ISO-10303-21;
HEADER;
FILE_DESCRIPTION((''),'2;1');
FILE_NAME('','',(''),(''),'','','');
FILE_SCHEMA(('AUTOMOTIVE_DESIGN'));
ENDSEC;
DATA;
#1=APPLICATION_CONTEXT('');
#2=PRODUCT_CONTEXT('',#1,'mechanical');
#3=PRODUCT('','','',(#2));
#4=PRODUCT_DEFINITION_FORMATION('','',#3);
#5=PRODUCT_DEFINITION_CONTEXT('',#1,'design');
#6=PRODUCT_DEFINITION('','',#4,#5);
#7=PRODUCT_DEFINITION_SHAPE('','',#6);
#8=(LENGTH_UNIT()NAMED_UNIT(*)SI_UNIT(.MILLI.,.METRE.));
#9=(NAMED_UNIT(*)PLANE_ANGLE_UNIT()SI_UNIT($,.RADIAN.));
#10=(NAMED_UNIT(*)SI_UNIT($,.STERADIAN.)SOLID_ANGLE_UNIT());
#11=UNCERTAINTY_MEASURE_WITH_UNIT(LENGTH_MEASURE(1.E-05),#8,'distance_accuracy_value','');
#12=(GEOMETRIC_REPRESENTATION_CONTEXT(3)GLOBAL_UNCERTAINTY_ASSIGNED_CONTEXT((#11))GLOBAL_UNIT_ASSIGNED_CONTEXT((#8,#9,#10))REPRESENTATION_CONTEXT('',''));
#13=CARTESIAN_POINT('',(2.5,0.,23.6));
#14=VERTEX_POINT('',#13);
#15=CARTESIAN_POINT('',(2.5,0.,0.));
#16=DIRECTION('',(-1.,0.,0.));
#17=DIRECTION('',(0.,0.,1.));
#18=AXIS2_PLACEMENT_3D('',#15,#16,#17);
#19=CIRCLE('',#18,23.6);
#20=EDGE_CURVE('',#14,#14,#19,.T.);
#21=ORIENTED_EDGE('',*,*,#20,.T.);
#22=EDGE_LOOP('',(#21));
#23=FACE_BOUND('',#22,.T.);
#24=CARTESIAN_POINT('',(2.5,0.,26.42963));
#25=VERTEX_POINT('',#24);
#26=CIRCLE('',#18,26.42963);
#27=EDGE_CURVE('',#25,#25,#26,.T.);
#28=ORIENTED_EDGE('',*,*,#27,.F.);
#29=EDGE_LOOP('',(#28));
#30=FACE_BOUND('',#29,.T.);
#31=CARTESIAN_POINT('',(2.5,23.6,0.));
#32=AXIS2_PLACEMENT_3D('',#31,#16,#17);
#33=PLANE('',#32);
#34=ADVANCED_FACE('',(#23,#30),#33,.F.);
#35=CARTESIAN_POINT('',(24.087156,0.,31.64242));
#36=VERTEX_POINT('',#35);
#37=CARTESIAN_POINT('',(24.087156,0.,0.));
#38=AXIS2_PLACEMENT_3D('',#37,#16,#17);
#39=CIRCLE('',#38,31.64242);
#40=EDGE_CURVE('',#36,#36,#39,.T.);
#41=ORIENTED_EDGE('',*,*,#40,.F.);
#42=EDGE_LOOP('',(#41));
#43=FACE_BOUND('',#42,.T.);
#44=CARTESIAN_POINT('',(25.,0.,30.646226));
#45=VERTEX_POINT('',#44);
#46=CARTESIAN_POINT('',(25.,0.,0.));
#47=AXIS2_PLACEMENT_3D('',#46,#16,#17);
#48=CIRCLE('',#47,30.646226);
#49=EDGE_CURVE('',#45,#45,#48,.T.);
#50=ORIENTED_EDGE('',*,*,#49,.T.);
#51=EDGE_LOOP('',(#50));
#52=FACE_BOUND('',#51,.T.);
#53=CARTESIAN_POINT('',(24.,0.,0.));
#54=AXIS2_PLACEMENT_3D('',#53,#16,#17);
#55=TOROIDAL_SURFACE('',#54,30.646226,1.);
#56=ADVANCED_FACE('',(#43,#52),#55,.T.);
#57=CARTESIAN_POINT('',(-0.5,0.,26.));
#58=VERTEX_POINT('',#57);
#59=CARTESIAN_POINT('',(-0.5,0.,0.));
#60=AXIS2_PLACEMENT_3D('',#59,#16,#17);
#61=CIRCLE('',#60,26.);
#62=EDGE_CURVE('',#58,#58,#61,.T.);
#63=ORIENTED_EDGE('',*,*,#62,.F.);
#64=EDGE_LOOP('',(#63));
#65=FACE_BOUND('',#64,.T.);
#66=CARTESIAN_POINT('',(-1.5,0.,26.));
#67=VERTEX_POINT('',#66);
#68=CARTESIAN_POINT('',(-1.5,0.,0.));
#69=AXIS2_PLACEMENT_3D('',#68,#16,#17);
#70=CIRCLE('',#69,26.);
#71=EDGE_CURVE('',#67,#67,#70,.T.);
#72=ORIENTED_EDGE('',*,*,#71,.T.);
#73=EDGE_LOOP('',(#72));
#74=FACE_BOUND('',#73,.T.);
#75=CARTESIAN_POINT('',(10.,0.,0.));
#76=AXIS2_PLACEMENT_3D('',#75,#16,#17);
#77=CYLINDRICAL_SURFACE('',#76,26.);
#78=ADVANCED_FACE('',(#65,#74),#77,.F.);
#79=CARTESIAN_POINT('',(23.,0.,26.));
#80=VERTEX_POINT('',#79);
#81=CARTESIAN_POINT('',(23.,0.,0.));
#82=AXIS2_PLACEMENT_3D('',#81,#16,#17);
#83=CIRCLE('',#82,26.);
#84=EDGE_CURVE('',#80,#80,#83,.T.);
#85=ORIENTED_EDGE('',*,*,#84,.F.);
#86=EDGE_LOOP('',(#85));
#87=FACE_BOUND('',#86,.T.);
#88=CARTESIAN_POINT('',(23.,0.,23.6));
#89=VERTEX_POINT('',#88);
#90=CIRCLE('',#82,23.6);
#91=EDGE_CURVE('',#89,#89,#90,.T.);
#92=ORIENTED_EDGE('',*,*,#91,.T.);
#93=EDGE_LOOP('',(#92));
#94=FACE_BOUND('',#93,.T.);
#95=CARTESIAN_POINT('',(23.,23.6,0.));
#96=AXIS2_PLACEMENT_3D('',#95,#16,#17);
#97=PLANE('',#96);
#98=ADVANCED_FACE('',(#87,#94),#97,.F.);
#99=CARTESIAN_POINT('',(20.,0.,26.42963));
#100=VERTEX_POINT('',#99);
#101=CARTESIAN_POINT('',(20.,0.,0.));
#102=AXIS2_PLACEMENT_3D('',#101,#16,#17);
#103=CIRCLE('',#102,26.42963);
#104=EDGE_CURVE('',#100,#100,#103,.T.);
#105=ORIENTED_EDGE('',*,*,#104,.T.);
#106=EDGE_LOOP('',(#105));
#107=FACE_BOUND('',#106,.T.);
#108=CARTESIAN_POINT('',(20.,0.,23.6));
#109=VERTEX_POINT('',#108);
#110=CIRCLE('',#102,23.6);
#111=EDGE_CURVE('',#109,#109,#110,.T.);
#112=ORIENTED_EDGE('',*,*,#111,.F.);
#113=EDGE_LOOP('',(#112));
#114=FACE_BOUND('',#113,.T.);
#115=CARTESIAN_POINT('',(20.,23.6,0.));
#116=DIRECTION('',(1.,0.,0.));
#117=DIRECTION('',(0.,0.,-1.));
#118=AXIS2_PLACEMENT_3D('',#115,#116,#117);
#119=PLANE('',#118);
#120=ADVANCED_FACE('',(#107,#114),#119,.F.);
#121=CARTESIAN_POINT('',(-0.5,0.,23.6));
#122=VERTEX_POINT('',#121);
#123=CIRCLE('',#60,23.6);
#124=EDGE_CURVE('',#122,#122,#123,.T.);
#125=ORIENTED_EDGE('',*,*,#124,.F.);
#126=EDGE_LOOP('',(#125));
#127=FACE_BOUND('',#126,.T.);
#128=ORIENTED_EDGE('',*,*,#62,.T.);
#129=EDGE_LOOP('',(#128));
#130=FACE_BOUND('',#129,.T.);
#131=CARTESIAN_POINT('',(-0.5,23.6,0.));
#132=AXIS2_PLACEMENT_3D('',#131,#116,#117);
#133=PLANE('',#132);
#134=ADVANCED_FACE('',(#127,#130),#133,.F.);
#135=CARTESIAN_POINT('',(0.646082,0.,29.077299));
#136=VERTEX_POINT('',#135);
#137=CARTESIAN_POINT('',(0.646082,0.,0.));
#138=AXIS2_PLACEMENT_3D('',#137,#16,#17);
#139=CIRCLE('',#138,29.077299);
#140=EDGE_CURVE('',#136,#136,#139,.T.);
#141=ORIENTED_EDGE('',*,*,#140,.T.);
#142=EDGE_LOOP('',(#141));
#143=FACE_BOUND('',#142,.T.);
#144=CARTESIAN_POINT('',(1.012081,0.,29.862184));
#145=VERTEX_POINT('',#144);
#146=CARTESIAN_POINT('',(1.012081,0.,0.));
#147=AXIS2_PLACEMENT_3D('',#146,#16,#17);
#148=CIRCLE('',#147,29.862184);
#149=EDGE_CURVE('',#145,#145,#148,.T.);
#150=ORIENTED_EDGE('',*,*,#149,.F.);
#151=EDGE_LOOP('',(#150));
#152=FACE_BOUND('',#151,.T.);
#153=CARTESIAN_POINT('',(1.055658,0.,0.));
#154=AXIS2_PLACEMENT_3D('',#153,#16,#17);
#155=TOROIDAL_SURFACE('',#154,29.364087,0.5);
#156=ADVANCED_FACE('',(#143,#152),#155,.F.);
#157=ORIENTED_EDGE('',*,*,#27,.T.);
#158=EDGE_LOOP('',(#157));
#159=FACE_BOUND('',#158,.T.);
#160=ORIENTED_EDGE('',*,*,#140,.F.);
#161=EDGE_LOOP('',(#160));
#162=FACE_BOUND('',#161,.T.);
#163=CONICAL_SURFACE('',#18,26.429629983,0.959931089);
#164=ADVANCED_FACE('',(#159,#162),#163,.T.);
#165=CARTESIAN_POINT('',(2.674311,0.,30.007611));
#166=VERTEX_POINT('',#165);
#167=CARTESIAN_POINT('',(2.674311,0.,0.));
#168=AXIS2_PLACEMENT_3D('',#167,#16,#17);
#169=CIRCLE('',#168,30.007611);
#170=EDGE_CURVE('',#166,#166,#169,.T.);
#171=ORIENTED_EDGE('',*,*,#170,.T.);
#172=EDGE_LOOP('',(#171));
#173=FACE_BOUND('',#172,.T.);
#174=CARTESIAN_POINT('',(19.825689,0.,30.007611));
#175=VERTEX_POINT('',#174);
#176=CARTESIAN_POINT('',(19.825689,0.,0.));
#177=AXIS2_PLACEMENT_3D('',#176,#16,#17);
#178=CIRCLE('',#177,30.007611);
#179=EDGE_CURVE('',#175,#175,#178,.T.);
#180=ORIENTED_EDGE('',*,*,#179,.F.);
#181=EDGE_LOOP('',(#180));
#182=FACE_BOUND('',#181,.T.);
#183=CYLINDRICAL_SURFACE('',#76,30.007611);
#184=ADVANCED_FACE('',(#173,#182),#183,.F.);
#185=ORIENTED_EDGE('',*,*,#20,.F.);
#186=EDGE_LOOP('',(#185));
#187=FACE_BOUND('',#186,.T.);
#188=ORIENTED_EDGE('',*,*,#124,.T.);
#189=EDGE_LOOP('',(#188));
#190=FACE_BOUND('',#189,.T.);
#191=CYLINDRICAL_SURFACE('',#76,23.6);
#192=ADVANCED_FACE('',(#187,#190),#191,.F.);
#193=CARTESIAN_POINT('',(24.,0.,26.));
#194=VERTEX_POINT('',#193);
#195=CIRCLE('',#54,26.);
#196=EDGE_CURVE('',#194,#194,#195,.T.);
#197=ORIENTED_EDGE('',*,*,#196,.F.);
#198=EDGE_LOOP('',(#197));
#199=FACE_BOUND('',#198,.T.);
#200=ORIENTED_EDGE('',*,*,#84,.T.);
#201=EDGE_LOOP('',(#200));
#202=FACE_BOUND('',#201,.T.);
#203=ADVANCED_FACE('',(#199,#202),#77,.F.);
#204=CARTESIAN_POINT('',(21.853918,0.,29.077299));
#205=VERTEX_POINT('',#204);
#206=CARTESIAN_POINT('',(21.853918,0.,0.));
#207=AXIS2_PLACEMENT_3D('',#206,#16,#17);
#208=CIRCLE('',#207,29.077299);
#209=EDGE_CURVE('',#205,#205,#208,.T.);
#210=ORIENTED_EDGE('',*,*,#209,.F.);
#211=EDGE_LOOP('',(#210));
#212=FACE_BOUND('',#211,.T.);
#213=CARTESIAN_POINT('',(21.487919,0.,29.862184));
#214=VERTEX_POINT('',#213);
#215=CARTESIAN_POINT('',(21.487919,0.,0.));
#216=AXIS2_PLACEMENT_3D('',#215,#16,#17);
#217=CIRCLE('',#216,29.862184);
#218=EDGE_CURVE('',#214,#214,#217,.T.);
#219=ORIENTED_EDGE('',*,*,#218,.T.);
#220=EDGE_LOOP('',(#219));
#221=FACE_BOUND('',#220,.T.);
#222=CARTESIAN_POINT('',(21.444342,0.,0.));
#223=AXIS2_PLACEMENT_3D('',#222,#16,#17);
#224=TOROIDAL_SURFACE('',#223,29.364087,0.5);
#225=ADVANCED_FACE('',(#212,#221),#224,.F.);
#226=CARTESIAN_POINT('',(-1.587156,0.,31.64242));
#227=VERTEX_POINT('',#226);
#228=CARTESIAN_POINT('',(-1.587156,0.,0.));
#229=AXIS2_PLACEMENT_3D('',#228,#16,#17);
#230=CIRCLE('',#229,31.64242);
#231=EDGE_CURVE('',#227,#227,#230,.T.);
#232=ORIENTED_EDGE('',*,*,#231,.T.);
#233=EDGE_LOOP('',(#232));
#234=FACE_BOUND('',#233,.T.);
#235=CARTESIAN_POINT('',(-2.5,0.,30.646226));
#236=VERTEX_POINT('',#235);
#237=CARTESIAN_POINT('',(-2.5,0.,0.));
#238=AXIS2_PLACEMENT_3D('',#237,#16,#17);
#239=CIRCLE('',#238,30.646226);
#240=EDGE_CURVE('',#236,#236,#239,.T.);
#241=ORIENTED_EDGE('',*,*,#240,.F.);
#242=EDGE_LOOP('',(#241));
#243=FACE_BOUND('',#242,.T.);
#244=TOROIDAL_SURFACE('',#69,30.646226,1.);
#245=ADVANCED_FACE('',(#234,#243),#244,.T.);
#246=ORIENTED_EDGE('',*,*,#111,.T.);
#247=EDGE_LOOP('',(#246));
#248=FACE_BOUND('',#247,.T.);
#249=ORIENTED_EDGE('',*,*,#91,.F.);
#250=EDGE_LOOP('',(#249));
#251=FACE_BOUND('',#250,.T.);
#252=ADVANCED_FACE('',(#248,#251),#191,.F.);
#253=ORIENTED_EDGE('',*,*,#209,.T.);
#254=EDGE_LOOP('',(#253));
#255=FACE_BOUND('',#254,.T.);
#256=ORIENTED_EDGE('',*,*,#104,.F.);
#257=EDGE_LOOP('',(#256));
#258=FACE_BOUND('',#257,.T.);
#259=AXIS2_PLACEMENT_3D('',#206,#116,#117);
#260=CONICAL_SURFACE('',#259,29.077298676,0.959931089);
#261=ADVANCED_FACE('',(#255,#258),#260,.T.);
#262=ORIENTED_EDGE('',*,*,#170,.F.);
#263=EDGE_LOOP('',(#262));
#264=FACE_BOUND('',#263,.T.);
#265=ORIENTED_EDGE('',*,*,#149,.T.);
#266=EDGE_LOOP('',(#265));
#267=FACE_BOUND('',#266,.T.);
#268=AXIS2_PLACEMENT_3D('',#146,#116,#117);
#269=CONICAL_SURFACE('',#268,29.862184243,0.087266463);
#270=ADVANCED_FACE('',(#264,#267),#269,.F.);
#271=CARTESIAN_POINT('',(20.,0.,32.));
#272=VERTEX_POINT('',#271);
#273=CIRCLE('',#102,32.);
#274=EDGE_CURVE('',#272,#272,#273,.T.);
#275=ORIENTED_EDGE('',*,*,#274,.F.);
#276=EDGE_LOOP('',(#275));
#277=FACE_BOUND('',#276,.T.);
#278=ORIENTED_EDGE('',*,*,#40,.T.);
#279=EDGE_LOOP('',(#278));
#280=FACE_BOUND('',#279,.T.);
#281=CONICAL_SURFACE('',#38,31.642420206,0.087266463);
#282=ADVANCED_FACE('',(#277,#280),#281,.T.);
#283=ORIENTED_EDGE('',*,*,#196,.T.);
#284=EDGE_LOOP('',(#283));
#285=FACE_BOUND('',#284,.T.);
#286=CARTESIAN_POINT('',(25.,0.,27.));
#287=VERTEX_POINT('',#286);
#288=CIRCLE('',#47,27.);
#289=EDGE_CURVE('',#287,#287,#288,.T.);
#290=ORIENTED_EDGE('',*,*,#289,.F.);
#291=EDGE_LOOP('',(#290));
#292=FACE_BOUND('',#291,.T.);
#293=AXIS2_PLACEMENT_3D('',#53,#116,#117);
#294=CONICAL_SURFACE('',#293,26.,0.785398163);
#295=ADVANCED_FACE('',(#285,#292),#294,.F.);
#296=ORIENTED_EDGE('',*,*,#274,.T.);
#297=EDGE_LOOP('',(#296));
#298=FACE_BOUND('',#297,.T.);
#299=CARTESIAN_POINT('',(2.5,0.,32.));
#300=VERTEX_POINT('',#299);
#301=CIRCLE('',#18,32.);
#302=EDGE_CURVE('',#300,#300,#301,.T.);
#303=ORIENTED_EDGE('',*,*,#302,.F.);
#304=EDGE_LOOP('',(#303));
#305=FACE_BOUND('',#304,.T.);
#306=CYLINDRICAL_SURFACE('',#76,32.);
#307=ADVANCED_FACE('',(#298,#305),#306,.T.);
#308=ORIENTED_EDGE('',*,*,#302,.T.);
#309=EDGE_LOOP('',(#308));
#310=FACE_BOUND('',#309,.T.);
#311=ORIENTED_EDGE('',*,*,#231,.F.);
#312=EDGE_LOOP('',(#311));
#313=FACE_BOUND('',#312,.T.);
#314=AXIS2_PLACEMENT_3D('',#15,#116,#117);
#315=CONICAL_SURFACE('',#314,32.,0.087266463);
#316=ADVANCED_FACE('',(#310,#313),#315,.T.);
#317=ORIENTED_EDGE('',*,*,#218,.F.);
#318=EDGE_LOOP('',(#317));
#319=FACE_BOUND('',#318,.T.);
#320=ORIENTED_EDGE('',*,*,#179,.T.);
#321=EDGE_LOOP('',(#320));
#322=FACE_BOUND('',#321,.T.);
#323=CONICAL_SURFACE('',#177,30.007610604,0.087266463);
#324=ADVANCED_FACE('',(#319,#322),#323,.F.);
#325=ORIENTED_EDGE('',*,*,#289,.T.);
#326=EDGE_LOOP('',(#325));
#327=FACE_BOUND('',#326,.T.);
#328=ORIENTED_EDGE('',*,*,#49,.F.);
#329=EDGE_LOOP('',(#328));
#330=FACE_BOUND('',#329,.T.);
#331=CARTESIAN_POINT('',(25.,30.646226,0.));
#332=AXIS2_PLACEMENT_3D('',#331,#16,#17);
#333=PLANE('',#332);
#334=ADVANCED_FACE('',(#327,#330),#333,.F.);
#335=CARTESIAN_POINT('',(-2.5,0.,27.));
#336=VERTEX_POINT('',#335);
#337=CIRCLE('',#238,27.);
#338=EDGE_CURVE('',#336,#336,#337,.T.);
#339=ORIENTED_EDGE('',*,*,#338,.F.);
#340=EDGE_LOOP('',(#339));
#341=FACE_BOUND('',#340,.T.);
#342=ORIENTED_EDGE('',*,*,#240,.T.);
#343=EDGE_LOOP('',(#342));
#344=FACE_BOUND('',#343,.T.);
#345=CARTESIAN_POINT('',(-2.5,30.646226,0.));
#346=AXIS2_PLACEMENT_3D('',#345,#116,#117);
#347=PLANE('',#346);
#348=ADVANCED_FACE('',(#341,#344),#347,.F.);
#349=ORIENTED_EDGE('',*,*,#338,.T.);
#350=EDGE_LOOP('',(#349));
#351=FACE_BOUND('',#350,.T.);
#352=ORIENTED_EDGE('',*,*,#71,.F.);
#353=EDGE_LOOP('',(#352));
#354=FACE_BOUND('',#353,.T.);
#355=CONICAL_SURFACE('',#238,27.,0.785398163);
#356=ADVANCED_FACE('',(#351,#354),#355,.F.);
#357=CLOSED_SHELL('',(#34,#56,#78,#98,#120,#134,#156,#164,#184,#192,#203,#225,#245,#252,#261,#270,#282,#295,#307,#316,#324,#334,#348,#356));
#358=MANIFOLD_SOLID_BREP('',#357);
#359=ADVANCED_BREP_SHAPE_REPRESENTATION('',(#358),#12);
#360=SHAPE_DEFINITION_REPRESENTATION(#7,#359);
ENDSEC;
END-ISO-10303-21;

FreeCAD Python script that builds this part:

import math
import FreeCAD as App
import Part
import Sketcher

V = App.Vector
Q = App.Units.Quantity

doc = App.newDocument("Part")
body = doc.addObject("PartDesign::Body", "Body")

sketch1 = doc.addObject("Sketcher::SketchObject", "Sketch")
body.addObject(sketch1)
sketch1.AttachmentSupport = (doc.XY_Plane, [""])
sketch1.MapMode = "FlatFace"
sketch1.addGeometry(Part.LineSegment(V(-2.5, 30.65, 0), V(-2.5, 27, 0)), False)
sketch1.addGeometry(Part.LineSegment(V(-2.5, 27, 0), V(-1.5, 26, 0)), False)
sketch1.addGeometry(Part.LineSegment(V(-1.5, 26, 0), V(-0.5, 26, 0)), False)
sketch1.addGeometry(Part.LineSegment(V(-0.5, 26, 0), V(-0.5, 23.6, 0)), False)
sketch1.addGeometry(Part.LineSegment(V(-0.5, 23.6, 0), V(2.5, 23.6, 0)), False)
sketch1.addGeometry(Part.LineSegment(V(2.5, 23.6, 0), V(2.5, 26.43, 0)), False)
sketch1.addGeometry(Part.LineSegment(V(2.5, 26.43, 0), V(0.65, 29.08, 0)), False)
sketch1.addGeometry(Part.ArcOfCircle(Part.Circle(V(1.06, 29.36, 0), V(0, 0, 1), 0.5), math.radians(95), math.radians(215)), False)
sketch1.addGeometry(Part.LineSegment(V(1.01, 29.86, 0), V(2.67, 30.01, 0)), False)
sketch1.addGeometry(Part.LineSegment(V(2.67, 30.01, 0), V(19.83, 30.01, 0)), False)
sketch1.addGeometry(Part.LineSegment(V(19.83, 30.01, 0), V(21.49, 29.86, 0)), False)
sketch1.addGeometry(Part.ArcOfCircle(Part.Circle(V(21.44, 29.36, 0), V(0, 0, 1), 0.5), math.radians(-35), math.radians(85)), False)
sketch1.addGeometry(Part.LineSegment(V(21.85, 29.08, 0), V(20, 26.43, 0)), False)
sketch1.addGeometry(Part.LineSegment(V(20, 26.43, 0), V(20, 23.6, 0)), False)
sketch1.addGeometry(Part.LineSegment(V(20, 23.6, 0), V(23, 23.6, 0)), False)
sketch1.addGeometry(Part.LineSegment(V(23, 23.6, 0), V(23, 26, 0)), False)
sketch1.addGeometry(Part.LineSegment(V(23, 26, 0), V(24, 26, 0)), False)
sketch1.addGeometry(Part.LineSegment(V(24, 26, 0), V(25, 27, 0)), False)
sketch1.addGeometry(Part.LineSegment(V(25, 27, 0), V(25, 30.65, 0)), False)
sketch1.addGeometry(Part.ArcOfCircle(Part.Circle(V(24, 30.65, 0), V(0, 0, 1), 1), math.radians(0), math.radians(85)), False)
sketch1.addGeometry(Part.LineSegment(V(24.09, 31.64, 0), V(20, 32, 0)), False)
sketch1.addGeometry(Part.LineSegment(V(20, 32, 0), V(2.5, 32, 0)), False)
sketch1.addGeometry(Part.LineSegment(V(2.5, 32, 0), V(-1.59, 31.64, 0)), False)
sketch1.addGeometry(Part.ArcOfCircle(Part.Circle(V(-1.5, 30.65, 0), V(0, 0, 1), 1), math.radians(95), math.radians(180)), False)
sketch1.addConstraint(Sketcher.Constraint("Coincident", 0, 2, 1, 1))
sketch1.addConstraint(Sketcher.Constraint("Coincident", 1, 2, 2, 1))
sketch1.addConstraint(Sketcher.Constraint("Coincident", 2, 2, 3, 1))
sketch1.addConstraint(Sketcher.Constraint("Coincident", 3, 2, 4, 1))
sketch1.addConstraint(Sketcher.Constraint("Coincident", 4, 2, 5, 1))
sketch1.addConstraint(Sketcher.Constraint("Coincident", 5, 2, 6, 1))
sketch1.addConstraint(Sketcher.Constraint("Tangent", 6, 2, 7, 2))
sketch1.addConstraint(Sketcher.Constraint("Tangent", 7, 1, 8, 1))
sketch1.addConstraint(Sketcher.Constraint("Coincident", 8, 2, 9, 1))
sketch1.addConstraint(Sketcher.Constraint("Coincident", 9, 2, 10, 1))
sketch1.addConstraint(Sketcher.Constraint("Tangent", 10, 2, 11, 2))
sketch1.addConstraint(Sketcher.Constraint("Tangent", 11, 1, 12, 1))
sketch1.addConstraint(Sketcher.Constraint("Coincident", 12, 2, 13, 1))
sketch1.addConstraint(Sketcher.Constraint("Coincident", 13, 2, 14, 1))
sketch1.addConstraint(Sketcher.Constraint("Coincident", 14, 2, 15, 1))
sketch1.addConstraint(Sketcher.Constraint("Coincident", 15, 2, 16, 1))
sketch1.addConstraint(Sketcher.Constraint("Coincident", 16, 2, 17, 1))
sketch1.addConstraint(Sketcher.Constraint("Coincident", 17, 2, 18, 1))
sketch1.addConstraint(Sketcher.Constraint("Tangent", 18, 2, 19, 1))
sketch1.addConstraint(Sketcher.Constraint("Tangent", 19, 2, 20, 1))
sketch1.addConstraint(Sketcher.Constraint("Coincident", 20, 2, 21, 1))
sketch1.addConstraint(Sketcher.Constraint("Coincident", 21, 2, 22, 1))
sketch1.addConstraint(Sketcher.Constraint("Tangent", 22, 2, 23, 1))
sketch1.addConstraint(Sketcher.Constraint("Tangent", 23, 2, 0, 1))
sketch1.addConstraint(Sketcher.Constraint("Vertical", 0))
sketch1.addConstraint(Sketcher.Constraint("Horizontal", 2))
sketch1.addConstraint(Sketcher.Constraint("Vertical", 3))
sketch1.addConstraint(Sketcher.Constraint("Horizontal", 4))
sketch1.addConstraint(Sketcher.Constraint("Vertical", 5))
sketch1.addConstraint(Sketcher.Constraint("Horizontal", 9))
sketch1.addConstraint(Sketcher.Constraint("Vertical", 13))
sketch1.addConstraint(Sketcher.Constraint("Horizontal", 14))
sketch1.addConstraint(Sketcher.Constraint("Vertical", 15))
sketch1.addConstraint(Sketcher.Constraint("Horizontal", 16))
sketch1.addConstraint(Sketcher.Constraint("Vertical", 18))
sketch1.addConstraint(Sketcher.Constraint("Horizontal", 21))
sketch1.addConstraint(Sketcher.Constraint("Equal", 7, 11))
sketch1.addConstraint(Sketcher.Constraint("Equal", 19, 23))
sketch1.addConstraint(Sketcher.Constraint("Perpendicular", 1, 17))
sketch1.addConstraint(Sketcher.Constraint("Parallel", 10, 20))
sketch1.addConstraint(Sketcher.Constraint("Parallel", 8, 22))
sketch1.addConstraint(Sketcher.Constraint("Horizontal", 7, 3, 11, 3))
sketch1.addConstraint(Sketcher.Constraint("Horizontal", 19, 3, 23, 3))
sketch1.addConstraint(Sketcher.Constraint("Horizontal", 6, 2, 11, 1))
sketch1.addConstraint(Sketcher.Constraint("Horizontal", 5, 2, 12, 2))
sketch1.addConstraint(Sketcher.Constraint("Horizontal", 4, 2, 13, 2))
sketch1.addConstraint(Sketcher.Constraint("Horizontal", 2, 2, 15, 2))
sketch1.addConstraint(Sketcher.Constraint("Horizontal", 0, 2, 17, 2))
sketch1.addConstraint(Sketcher.Constraint("Vertical", 23, 3, 1, 2))
sketch1.addConstraint(Sketcher.Constraint("Vertical", 19, 3, 16, 2))
sketch1.addConstraint(Sketcher.Constraint("Vertical", 13, 2, 20, 2))
sketch1.addConstraint(Sketcher.Constraint("Vertical", 5, 2, 21, 2))
sketch1.addConstraint(Sketcher.Constraint("Equal", 4, 14))
sketch1.addConstraint(Sketcher.Constraint("Equal", 2, 16))
sketch1.addConstraint(Sketcher.Constraint("Radius", 19, 1.0))
sketch1.addConstraint(Sketcher.Constraint("Radius", 7, 0.5))
sketch1.addConstraint(Sketcher.Constraint("DistanceX", 2, 1, 2, 2, 1.0))
sketch1.addConstraint(Sketcher.Constraint("DistanceX", 4, 1, 4, 2, 3.0))
sketch1.addConstraint(Sketcher.Constraint("Angle", 6, Q("125 deg")))
sketch1.addConstraint(Sketcher.Constraint("Angle", 8, Q("5 deg")))
sketch1.addConstraint(Sketcher.Constraint("DistanceX", 21, 2, 21, 1, 17.5))
sketch1.addConstraint(Sketcher.Constraint("DistanceY", 3, 2, 3, 1, 2.4))
sketch1.addConstraint(Sketcher.Constraint("DistanceX", -1, 1, 19, 3, 24.0))
sketch1.addConstraint(Sketcher.Constraint("DistanceY", -1, 1, 0, 2, 27.0))
sketch1.addConstraint(Sketcher.Constraint("DistanceY", -1, 1, 20, 2, 32.0))
sketch1.addConstraint(Sketcher.Constraint("DistanceY", 5, 1, 5, 2, 2.82963))
sketch1.addConstraint(Sketcher.Constraint("DistanceY", -1, 1, 6, 2, 29.077299))
sketch1.addConstraint(Sketcher.Constraint("Distance", 8, 1.66858))
revolution = doc.addObject("PartDesign::Revolution", "Revolution")
body.addObject(revolution)
revolution.Profile = sketch1
revolution.ReferenceAxis = (sketch1, ["H_Axis"])
revolution.Angle = 360

doc.recompute()
